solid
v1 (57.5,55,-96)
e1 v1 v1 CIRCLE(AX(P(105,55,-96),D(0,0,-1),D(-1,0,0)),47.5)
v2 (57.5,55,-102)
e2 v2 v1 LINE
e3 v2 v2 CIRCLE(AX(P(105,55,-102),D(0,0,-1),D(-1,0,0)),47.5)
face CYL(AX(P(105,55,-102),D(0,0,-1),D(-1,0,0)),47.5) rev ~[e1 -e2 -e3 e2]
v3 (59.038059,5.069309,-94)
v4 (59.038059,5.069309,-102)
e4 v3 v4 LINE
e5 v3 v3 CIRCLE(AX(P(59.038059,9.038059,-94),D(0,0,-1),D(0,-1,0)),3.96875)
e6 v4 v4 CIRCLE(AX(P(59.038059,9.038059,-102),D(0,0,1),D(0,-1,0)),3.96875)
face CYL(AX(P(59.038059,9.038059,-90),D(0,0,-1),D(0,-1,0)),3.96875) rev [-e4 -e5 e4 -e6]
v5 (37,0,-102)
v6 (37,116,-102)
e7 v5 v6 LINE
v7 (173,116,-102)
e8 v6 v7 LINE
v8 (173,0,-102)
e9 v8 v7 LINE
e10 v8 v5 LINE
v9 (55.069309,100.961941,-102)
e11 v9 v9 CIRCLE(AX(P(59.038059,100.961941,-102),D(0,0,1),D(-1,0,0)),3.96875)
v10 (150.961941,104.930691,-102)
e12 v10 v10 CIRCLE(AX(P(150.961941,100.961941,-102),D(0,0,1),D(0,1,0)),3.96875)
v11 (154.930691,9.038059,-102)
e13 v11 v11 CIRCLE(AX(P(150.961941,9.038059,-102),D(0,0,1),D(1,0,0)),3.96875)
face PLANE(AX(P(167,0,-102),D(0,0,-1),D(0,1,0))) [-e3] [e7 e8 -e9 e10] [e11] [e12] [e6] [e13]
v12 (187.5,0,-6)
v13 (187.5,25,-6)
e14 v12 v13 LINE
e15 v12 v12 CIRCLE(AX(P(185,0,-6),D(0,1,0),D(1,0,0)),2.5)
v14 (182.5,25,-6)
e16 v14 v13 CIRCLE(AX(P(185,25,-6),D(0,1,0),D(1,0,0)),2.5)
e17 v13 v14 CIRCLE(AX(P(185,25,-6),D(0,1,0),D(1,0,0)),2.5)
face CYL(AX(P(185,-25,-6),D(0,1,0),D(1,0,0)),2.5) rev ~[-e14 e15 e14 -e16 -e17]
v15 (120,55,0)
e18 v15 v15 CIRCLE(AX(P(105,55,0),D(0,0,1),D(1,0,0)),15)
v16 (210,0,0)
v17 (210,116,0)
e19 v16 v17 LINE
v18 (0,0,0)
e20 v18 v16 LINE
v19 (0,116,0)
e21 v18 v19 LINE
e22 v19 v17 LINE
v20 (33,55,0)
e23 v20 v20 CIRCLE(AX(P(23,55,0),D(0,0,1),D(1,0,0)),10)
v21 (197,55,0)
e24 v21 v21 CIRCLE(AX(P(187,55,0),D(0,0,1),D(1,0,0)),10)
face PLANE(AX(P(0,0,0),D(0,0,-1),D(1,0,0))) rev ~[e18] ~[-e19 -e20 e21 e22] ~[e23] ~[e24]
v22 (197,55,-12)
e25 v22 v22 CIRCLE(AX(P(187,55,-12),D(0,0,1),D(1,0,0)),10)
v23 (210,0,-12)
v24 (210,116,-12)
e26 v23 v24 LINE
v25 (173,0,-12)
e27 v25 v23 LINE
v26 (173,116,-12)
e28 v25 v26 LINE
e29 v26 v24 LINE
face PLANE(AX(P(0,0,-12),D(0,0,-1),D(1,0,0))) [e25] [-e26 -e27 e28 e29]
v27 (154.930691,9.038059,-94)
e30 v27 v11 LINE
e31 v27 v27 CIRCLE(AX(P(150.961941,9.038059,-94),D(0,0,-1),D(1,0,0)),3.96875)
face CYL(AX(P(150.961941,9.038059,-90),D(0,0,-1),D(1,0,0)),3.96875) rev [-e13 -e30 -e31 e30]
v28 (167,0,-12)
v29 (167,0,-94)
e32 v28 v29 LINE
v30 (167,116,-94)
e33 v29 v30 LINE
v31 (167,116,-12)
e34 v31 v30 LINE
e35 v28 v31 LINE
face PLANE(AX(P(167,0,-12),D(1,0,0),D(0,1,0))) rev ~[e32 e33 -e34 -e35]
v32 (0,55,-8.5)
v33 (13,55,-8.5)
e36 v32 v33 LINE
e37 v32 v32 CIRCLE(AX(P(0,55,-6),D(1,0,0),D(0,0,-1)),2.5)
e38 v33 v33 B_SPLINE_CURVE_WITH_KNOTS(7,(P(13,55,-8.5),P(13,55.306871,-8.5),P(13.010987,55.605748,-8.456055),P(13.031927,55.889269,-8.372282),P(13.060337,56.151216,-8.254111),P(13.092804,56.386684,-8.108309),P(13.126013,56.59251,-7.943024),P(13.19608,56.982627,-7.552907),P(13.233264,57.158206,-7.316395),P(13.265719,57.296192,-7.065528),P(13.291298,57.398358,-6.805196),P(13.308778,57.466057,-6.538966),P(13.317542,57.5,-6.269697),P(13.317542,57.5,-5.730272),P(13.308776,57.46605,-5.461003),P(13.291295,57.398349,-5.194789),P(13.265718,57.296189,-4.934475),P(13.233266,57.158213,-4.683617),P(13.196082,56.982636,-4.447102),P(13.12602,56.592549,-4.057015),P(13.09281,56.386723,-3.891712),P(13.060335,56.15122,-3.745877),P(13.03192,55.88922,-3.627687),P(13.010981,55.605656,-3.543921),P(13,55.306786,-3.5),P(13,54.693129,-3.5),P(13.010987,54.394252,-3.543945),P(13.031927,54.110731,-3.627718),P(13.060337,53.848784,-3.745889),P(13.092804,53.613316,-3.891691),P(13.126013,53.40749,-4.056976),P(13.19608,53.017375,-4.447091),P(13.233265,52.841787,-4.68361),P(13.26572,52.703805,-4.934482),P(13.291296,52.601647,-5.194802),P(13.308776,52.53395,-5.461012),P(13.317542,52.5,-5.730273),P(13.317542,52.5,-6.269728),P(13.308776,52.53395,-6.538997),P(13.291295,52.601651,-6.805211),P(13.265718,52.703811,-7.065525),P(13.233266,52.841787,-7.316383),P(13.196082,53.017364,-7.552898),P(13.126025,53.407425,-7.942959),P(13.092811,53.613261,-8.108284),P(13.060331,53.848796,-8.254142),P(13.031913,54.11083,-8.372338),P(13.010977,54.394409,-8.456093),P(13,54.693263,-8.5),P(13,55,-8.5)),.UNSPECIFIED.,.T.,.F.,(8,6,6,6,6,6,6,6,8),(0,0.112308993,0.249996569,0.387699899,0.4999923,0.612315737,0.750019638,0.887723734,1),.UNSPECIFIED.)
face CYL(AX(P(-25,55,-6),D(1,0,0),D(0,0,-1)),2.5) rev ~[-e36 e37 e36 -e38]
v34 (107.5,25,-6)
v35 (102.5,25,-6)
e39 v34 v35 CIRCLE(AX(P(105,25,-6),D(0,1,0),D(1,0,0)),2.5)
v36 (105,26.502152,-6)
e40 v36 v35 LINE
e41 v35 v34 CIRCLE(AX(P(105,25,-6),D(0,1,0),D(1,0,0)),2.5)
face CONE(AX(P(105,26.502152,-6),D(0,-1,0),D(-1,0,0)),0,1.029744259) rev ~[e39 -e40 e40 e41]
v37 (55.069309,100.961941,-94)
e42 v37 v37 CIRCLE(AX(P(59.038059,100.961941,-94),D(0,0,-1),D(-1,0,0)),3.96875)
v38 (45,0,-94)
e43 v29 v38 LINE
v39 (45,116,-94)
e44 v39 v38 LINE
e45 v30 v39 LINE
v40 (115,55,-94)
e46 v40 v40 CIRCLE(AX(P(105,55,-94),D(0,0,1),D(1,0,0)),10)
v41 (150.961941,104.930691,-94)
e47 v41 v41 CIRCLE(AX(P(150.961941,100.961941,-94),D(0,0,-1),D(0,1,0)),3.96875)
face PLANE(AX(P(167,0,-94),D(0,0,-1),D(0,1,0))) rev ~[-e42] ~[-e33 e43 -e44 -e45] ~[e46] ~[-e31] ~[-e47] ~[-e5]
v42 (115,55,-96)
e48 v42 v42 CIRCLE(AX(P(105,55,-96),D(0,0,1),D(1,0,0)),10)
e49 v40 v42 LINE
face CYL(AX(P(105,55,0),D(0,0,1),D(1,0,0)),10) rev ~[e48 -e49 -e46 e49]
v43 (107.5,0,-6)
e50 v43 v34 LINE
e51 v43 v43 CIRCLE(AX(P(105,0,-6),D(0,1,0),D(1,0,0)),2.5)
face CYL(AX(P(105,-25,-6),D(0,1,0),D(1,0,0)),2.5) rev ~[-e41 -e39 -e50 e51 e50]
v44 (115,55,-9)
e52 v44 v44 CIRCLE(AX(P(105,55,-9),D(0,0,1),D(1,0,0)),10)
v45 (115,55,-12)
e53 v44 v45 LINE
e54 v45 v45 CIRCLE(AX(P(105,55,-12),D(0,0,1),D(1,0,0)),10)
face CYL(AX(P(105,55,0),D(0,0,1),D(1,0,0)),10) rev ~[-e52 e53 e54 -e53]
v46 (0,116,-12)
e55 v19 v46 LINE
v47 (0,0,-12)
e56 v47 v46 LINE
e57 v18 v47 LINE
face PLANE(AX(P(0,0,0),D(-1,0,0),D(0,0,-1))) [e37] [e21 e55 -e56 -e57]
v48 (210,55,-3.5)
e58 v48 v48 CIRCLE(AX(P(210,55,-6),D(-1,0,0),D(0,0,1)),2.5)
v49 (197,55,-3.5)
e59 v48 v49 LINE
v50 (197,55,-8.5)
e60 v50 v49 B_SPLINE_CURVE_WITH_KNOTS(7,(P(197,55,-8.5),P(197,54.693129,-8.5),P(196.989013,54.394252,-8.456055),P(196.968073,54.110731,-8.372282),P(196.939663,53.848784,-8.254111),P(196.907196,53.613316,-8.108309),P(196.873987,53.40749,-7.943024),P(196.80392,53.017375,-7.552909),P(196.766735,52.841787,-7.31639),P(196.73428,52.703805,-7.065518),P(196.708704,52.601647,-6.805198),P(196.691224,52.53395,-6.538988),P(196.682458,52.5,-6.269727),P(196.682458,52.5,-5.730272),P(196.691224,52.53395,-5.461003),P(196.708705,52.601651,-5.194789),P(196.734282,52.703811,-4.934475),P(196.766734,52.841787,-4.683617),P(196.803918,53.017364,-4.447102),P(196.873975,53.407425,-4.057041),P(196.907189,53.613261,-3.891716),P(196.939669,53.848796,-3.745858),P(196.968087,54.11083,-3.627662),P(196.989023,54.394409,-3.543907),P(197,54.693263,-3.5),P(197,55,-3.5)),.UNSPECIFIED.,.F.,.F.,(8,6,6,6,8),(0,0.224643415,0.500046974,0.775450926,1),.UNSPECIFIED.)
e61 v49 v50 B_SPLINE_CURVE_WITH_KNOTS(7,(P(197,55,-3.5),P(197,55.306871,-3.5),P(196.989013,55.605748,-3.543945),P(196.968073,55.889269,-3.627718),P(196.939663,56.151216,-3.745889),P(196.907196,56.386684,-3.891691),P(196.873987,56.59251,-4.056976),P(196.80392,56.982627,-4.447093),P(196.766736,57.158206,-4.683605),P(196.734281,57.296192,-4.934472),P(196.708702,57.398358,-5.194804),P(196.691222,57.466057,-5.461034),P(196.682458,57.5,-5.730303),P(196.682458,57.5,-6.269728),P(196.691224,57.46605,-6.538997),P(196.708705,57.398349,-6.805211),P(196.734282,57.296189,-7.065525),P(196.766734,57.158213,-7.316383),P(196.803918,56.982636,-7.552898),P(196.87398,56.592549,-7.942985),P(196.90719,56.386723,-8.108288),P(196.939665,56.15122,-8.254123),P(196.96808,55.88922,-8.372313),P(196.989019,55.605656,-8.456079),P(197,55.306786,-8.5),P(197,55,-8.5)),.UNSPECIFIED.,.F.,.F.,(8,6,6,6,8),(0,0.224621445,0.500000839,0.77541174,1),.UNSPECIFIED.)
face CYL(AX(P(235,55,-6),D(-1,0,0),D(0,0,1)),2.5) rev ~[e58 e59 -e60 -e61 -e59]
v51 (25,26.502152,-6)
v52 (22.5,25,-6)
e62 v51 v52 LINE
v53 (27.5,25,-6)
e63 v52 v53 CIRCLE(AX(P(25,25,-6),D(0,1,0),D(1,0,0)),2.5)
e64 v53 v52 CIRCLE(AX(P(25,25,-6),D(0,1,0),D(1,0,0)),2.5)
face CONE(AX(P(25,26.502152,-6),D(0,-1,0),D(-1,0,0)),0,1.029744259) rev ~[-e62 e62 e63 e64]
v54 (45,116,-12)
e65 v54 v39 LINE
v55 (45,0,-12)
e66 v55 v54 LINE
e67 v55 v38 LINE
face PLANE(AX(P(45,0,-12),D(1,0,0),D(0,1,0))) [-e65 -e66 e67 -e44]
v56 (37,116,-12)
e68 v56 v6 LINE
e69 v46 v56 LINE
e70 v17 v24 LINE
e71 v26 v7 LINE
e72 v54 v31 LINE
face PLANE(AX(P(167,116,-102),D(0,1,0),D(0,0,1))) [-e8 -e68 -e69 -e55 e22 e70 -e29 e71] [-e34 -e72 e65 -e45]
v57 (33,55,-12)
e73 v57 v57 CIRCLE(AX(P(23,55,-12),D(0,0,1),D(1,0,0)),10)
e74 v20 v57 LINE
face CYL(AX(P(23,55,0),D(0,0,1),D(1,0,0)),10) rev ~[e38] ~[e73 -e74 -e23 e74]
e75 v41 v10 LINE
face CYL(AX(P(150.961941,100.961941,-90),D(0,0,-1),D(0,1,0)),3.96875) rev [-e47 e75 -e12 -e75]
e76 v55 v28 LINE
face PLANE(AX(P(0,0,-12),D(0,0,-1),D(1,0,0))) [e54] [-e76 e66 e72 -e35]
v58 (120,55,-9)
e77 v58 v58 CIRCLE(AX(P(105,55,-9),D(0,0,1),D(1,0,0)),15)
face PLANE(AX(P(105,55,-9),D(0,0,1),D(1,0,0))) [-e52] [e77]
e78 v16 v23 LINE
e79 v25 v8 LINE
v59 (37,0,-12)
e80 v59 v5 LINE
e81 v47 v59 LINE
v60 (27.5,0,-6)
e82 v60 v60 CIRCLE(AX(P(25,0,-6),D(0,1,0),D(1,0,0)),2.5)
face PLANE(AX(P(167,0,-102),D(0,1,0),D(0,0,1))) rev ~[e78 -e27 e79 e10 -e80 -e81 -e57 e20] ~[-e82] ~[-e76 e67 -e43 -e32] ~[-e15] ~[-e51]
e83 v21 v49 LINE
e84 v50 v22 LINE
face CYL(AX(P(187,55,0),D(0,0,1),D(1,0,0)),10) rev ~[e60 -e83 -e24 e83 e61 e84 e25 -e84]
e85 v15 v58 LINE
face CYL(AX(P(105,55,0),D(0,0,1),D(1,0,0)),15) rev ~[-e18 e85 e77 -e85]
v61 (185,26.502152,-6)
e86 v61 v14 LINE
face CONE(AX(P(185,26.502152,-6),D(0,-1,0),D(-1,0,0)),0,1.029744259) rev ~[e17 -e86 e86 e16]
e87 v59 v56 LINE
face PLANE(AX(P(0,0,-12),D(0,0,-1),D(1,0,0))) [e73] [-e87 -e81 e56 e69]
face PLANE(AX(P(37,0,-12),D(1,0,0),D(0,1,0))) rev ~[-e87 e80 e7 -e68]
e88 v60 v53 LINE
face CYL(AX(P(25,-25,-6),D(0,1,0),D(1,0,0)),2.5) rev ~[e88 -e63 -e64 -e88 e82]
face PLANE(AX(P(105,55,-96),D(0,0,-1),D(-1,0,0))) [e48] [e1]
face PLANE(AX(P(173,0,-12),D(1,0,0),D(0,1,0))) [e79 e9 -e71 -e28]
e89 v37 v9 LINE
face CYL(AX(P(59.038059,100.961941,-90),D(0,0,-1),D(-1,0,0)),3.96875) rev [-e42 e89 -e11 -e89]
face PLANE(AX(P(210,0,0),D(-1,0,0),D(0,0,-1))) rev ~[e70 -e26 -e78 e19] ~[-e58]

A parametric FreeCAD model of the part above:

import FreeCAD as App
import Part
import Sketcher
from FreeCAD import Vector
Q = App.Units.Quantity

doc = App.newDocument("Part")
body = doc.addObject("PartDesign::Body", "Body")

sketch1 = body.newObject("Sketcher::SketchObject", "Sketch")
sketch1.AttachmentSupport = (doc.getObject("XZ_Plane"), [""])
sketch1.MapMode = "FlatFace"
sketch1.addGeometry([
    Part.LineSegment(Vector(0, -12, 0), Vector(0, 0, 0)),
    Part.LineSegment(Vector(0, 0, 0), Vector(210, 0, 0)),
    Part.LineSegment(Vector(210, 0, 0), Vector(210, -12, 0)),
    Part.LineSegment(Vector(210, -12, 0), Vector(0, -12, 0)),
], False)
sketch1.addConstraint([
    Sketcher.Constraint("Coincident", 0, 2, 1, 1),
    Sketcher.Constraint("Coincident", 1, 2, 2, 1),
    Sketcher.Constraint("Coincident", 2, 2, 3, 1),
    Sketcher.Constraint("Coincident", 3, 2, 0, 1),
    Sketcher.Constraint("Vertical", 0),
    Sketcher.Constraint("Horizontal", 1),
    Sketcher.Constraint("Vertical", 2),
    Sketcher.Constraint("Horizontal", 3),
    Sketcher.Constraint("Coincident", 0, 2, -1, 1),
    Sketcher.Constraint("DistanceX", 1, 1, 1, 2, 210.0),
    Sketcher.Constraint("DistanceY", 0, 1, 0, 2, 12.0),
])
pad1 = body.newObject("PartDesign::Pad", "Pad")
pad1.Profile = sketch1
pad1.Length = 116
pad1.Reversed = True

sketch2 = body.newObject("Sketcher::SketchObject", "Sketch001")
sketch2.AttachmentSupport = (doc.getObject("XY_Plane"), [""])
sketch2.MapMode = "FlatFace"
sketch2.addGeometry([
    Part.Circle(Vector(23, 55, 0), Vector(0, 0, 1), 10),
    Part.Circle(Vector(187, 55, 0), Vector(0, 0, 1), 10),
], False)
sketch2.addConstraint([
    Sketcher.Constraint("Equal", 0, 1),
    Sketcher.Constraint("Horizontal", 0, 3, 1, 3),
    Sketcher.Constraint("Diameter", 0, 20.0),
    Sketcher.Constraint("DistanceX", -1, 1, 0, 3, 23.0),
    Sketcher.Constraint("DistanceY", -1, 1, 0, 3, 55.0),
    Sketcher.Constraint("DistanceX", -1, 1, 1, 3, 187.0),
])
pocket1 = body.newObject("PartDesign::Pocket", "Pocket")
pocket1.Profile = sketch2
pocket1.Type = "ThroughAll"

sketch3 = body.newObject("Sketcher::SketchObject", "Sketch002")
sketch3.AttachmentSupport = (doc.getObject("YZ_Plane"), [""])
sketch3.MapMode = "FlatFace"
sketch3.addGeometry(Part.Circle(Vector(55, -6, 0), Vector(0, 0, 1), 2.5), False)
sketch3.addConstraint([
    Sketcher.Constraint("Diameter", 0, 5.0),
    Sketcher.Constraint("DistanceX", -1, 1, 0, 3, 55.0),
    Sketcher.Constraint("DistanceY", 0, 3, -1, 1, 6.0),
])
doc.recompute()
hole = body.newObject("PartDesign::Hole", "Hole")
hole.Profile = sketch3
hole.ThreadType = "None"
hole.Diameter = 5
hole.DepthType = "Dimension"
hole.Depth = 25
hole.DrillPoint = "Angled"
hole.DrillPointAngle = 118
hole.Reversed = True

sketch4 = body.newObject("Sketcher::SketchObject", "Sketch003")
sketch4.AttachmentSupport = (doc.getObject("YZ_Plane"), [""])
sketch4.MapMode = "FlatFace"
sketch4.AttachmentOffset = App.Placement(Vector(0, 0, 210), App.Rotation())
sketch4.addGeometry(Part.Circle(Vector(55, -6, 0), Vector(0, 0, 1), 2.5), False)
sketch4.addConstraint([
    Sketcher.Constraint("Diameter", 0, 5.0),
    Sketcher.Constraint("DistanceX", -1, 1, 0, 3, 55.0),
    Sketcher.Constraint("DistanceY", 0, 3, -1, 1, 6.0),
])
doc.recompute()
hole2 = body.newObject("PartDesign::Hole", "Hole001")
hole2.Profile = sketch4
hole2.ThreadType = "None"
hole2.Diameter = 5
hole2.DepthType = "Dimension"
hole2.Depth = 25
hole2.DrillPoint = "Angled"
hole2.DrillPointAngle = 118

sketch5 = body.newObject("Sketcher::SketchObject", "Sketch004")
sketch5.AttachmentSupport = (doc.getObject("XZ_Plane"), [""])
sketch5.MapMode = "FlatFace"
sketch5.addGeometry([
    Part.Circle(Vector(25, -6, 0), Vector(0, 0, 1), 2.5),
    Part.Circle(Vector(105, -6, 0), Vector(0, 0, 1), 2.5),
    Part.Circle(Vector(185, -6, 0), Vector(0, 0, 1), 2.5),
], False)
sketch5.addConstraint([
    Sketcher.Constraint("Equal", 0, 1),
    Sketcher.Constraint("Equal", 1, 2),
    Sketcher.Constraint("Horizontal", 0, 3, 1, 3),
    Sketcher.Constraint("Horizontal", 1, 3, 2, 3),
    Sketcher.Constraint("Diameter", 0, 5.0),
    Sketcher.Constraint("DistanceX", -1, 1, 0, 3, 25.0),
    Sketcher.Constraint("DistanceY", 0, 3, -1, 1, 6.0),
    Sketcher.Constraint("DistanceX", -1, 1, 1, 3, 105.0),
    Sketcher.Constraint("DistanceX", -1, 1, 2, 3, 185.0),
])
doc.recompute()
hole3 = body.newObject("PartDesign::Hole", "Hole002")
hole3.Profile = sketch5
hole3.ThreadType = "None"
hole3.Diameter = 5
hole3.DepthType = "Dimension"
hole3.Depth = 25
hole3.DrillPoint = "Angled"
hole3.DrillPointAngle = 118

sketch6 = body.newObject("Sketcher::SketchObject", "Sketch005")
sketch6.AttachmentSupport = (doc.getObject("XY_Plane"), [""])
sketch6.MapMode = "FlatFace"
sketch6.AttachmentOffset = App.Placement(Vector(0, 0, -12), App.Rotation())
sketch6.addGeometry([
    Part.LineSegment(Vector(45, 116, 0), Vector(45, 0, 0)),
    Part.LineSegment(Vector(45, 0, 0), Vector(37, 0, 0)),
    Part.LineSegment(Vector(37, 0, 0), Vector(37, 116, 0)),
    Part.LineSegment(Vector(37, 116, 0), Vector(45, 116, 0)),
    Part.LineSegment(Vector(173, 116, 0), Vector(173, 0, 0)),
    Part.LineSegment(Vector(173, 0, 0), Vector(167, 0, 0)),
    Part.LineSegment(Vector(167, 0, 0), Vector(167, 116, 0)),
    Part.LineSegment(Vector(167, 116, 0), Vector(173, 116, 0)),
], False)
sketch6.addConstraint([
    Sketcher.Constraint("Coincident", 0, 2, 1, 1),
    Sketcher.Constraint("Coincident", 1, 2, 2, 1),
    Sketcher.Constraint("Coincident", 2, 2, 3, 1),
    Sketcher.Constraint("Coincident", 3, 2, 0, 1),
    Sketcher.Constraint("Coincident", 4, 2, 5, 1),
    Sketcher.Constraint("Coincident", 5, 2, 6, 1),
    Sketcher.Constraint("Coincident", 6, 2, 7, 1),
    Sketcher.Constraint("Coincident", 7, 2, 4, 1),
    Sketcher.Constraint("Vertical", 0),
    Sketcher.Constraint("Horizontal", 1),
    Sketcher.Constraint("Vertical", 2),
    Sketcher.Constraint("Horizontal", 3),
    Sketcher.Constraint("Vertical", 4),
    Sketcher.Constraint("Horizontal", 5),
    Sketcher.Constraint("Vertical", 6),
    Sketcher.Constraint("Horizontal", 7),
    Sketcher.Constraint("PointOnObject", 0, 2, -1),
    Sketcher.Constraint("PointOnObject", 4, 2, -1),
    Sketcher.Constraint("Horizontal", 3, 2, 6, 2),
    Sketcher.Constraint("DistanceX", 1, 2, 1, 1, 8.0),
    Sketcher.Constraint("DistanceX", 5, 2, 5, 1, 6.0),
    Sketcher.Constraint("DistanceY", 0, 2, 0, 1, 116.0),
    Sketcher.Constraint("DistanceX", -1, 1, 0, 2, 45.0),
    Sketcher.Constraint("DistanceX", -1, 1, 4, 2, 173.0),
])
pad2 = body.newObject("PartDesign::Pad", "Pad001")
pad2.Profile = sketch6
pad2.Length = 90
pad2.Reversed = True

sketch7 = body.newObject("Sketcher::SketchObject", "Sketch006")
sketch7.AttachmentSupport = (doc.getObject("YZ_Plane"), [""])
sketch7.MapMode = "FlatFace"
sketch7.AttachmentOffset = App.Placement(Vector(0, 0, 167), App.Rotation())
sketch7.addGeometry([
    Part.LineSegment(Vector(116, -102, 0), Vector(0, -102, 0)),
    Part.LineSegment(Vector(0, -102, 0), Vector(0, -94, 0)),
    Part.LineSegment(Vector(0, -94, 0), Vector(116, -94, 0)),
    Part.LineSegment(Vector(116, -94, 0), Vector(116, -102, 0)),
], False)
sketch7.addConstraint([
    Sketcher.Constraint("Coincident", 0, 2, 1, 1),
    Sketcher.Constraint("Coincident", 1, 2, 2, 1),
    Sketcher.Constraint("Coincident", 2, 2, 3, 1),
    Sketcher.Constraint("Coincident", 3, 2, 0, 1),
    Sketcher.Constraint("Horizontal", 0),
    Sketcher.Constraint("Vertical", 1),
    Sketcher.Constraint("Horizontal", 2),
    Sketcher.Constraint("Vertical", 3),
    Sketcher.Constraint("PointOnObject", 0, 2, -2),
    Sketcher.Constraint("DistanceX", 0, 2, 0, 1, 116.0),
    Sketcher.Constraint("DistanceY", 1, 1, 1, 2, 8.0),
    Sketcher.Constraint("DistanceY", 0, 2, -1, 1, 102.0),
])
pad3 = body.newObject("PartDesign::Pad", "Pad002")
pad3.Profile = sketch7
pad3.Type = "UpToFirst"
pad3.Reversed = True

sketch8 = body.newObject("Sketcher::SketchObject", "Sketch007")
sketch8.AttachmentSupport = (doc.getObject("XY_Plane"), [""])
sketch8.MapMode = "FlatFace"
sketch8.addGeometry(Part.Circle(Vector(105, 55, 0), Vector(0, 0, 1), 10), False)
sketch8.addConstraint([
    Sketcher.Constraint("Diameter", 0, 20.0),
    Sketcher.Constraint("DistanceX", -1, 1, 0, 3, 105.0),
    Sketcher.Constraint("DistanceY", -1, 1, 0, 3, 55.0),
])
pocket2 = body.newObject("PartDesign::Pocket", "Pocket001")
pocket2.Profile = sketch8
pocket2.Type = "ThroughAll"

sketch9 = body.newObject("Sketcher::SketchObject", "Sketch008")
sketch9.AttachmentSupport = (doc.getObject("XY_Plane"), [""])
sketch9.MapMode = "FlatFace"
sketch9.AttachmentOffset = App.Placement(Vector(0, 0, -102), App.Rotation())
sketch9.addGeometry(Part.Circle(Vector(105, 55, 0), Vector(0, 0, 1), 48), False)
sketch9.addConstraint([
    Sketcher.Constraint("Diameter", 0, 95.0),
    Sketcher.Constraint("DistanceX", -1, 1, 0, 3, 105.0),
    Sketcher.Constraint("DistanceY", -1, 1, 0, 3, 55.0),
])
pocket3 = body.newObject("PartDesign::Pocket", "Pocket002")
pocket3.Profile = sketch9
pocket3.Length = 6
pocket3.Reversed = True

sketch10 = body.newObject("Sketcher::SketchObject", "Sketch009")
sketch10.AttachmentSupport = (doc.getObject("YZ_Plane"), [""])
sketch10.MapMode = "FlatFace"
sketch10.AttachmentOffset = App.Placement(Vector(0, 0, 150.961941), App.Rotation())
sketch10.addGeometry([
    Part.LineSegment(Vector(101, -87.6, 0), Vector(101, -102, 0)),
    Part.LineSegment(Vector(101, -102, 0), Vector(104.9, -102, 0)),
    Part.LineSegment(Vector(104.9, -102, 0), Vector(104.9, -90, 0)),
    Part.LineSegment(Vector(104.9, -90, 0), Vector(101, -87.6, 0)),
], False)
sketch10.addGeometry(Part.LineSegment(Vector(101, -102, 0), Vector(101, -87.6, 0)), True)
sketch10.addConstraint([
    Sketcher.Constraint("Coincident", 0, 2, 1, 1),
    Sketcher.Constraint("Coincident", 1, 2, 2, 1),
    Sketcher.Constraint("Coincident", 2, 2, 3, 1),
    Sketcher.Constraint("Coincident", 3, 2, 0, 1),
    Sketcher.Constraint("Vertical", 0),
    Sketcher.Constraint("Horizontal", 1),
    Sketcher.Constraint("Vertical", 2),
    Sketcher.Constraint("Vertical", 4),
    Sketcher.Constraint("Coincident", 4, 1, 0, 2),
    Sketcher.Constraint("Equal", 0, 4),
    Sketcher.Constraint("DistanceY", 2, 1, 2, 2, 12.0),
    Sketcher.Constraint("Angle", 3, Q("149 deg")),
    Sketcher.Constraint("DistanceY", 0, 2, -1, 1, 102.0),
    Sketcher.Constraint("DistanceX", 1, 1, 1, 2, 3.96875),
    Sketcher.Constraint("DistanceX", -1, 1, 0, 2, 100.961941),
])
groove = body.newObject("PartDesign::Groove", "Groove")
groove.Profile = sketch10
groove.ReferenceAxis = (sketch10, ["Axis0"])
groove.Angle = 360
doc.recompute()

datumline = body.newObject("PartDesign::Line", "DatumLine")
datumline.Placement = App.Placement(Vector(105, 55, 0), App.Rotation(Vector(0, 0, 1), Vector(0, 0, 1)))
polarpattern = body.newObject("PartDesign::PolarPattern", "PolarPattern")
polarpattern.Originals = [groove]
polarpattern.Axis = (datumline, [""])
polarpattern.Angle = 360
polarpattern.Occurrences = 4
body.Tip = polarpattern

sketch11 = body.newObject("Sketcher::SketchObject", "Sketch010")
sketch11.AttachmentSupport = (doc.getObject("XY_Plane"), [""])
sketch11.MapMode = "FlatFace"
sketch11.addGeometry(Part.Circle(Vector(105, 55, 0), Vector(0, 0, 1), 15), False)
sketch11.addConstraint([
    Sketcher.Constraint("Diameter", 0, 30.0),
    Sketcher.Constraint("DistanceX", -1, 1, 0, 3, 105.0),
    Sketcher.Constraint("DistanceY", -1, 1, 0, 3, 55.0),
])
pocket4 = body.newObject("PartDesign::Pocket", "Pocket003")
pocket4.Profile = sketch11
pocket4.Length = 9

doc.recompute()
